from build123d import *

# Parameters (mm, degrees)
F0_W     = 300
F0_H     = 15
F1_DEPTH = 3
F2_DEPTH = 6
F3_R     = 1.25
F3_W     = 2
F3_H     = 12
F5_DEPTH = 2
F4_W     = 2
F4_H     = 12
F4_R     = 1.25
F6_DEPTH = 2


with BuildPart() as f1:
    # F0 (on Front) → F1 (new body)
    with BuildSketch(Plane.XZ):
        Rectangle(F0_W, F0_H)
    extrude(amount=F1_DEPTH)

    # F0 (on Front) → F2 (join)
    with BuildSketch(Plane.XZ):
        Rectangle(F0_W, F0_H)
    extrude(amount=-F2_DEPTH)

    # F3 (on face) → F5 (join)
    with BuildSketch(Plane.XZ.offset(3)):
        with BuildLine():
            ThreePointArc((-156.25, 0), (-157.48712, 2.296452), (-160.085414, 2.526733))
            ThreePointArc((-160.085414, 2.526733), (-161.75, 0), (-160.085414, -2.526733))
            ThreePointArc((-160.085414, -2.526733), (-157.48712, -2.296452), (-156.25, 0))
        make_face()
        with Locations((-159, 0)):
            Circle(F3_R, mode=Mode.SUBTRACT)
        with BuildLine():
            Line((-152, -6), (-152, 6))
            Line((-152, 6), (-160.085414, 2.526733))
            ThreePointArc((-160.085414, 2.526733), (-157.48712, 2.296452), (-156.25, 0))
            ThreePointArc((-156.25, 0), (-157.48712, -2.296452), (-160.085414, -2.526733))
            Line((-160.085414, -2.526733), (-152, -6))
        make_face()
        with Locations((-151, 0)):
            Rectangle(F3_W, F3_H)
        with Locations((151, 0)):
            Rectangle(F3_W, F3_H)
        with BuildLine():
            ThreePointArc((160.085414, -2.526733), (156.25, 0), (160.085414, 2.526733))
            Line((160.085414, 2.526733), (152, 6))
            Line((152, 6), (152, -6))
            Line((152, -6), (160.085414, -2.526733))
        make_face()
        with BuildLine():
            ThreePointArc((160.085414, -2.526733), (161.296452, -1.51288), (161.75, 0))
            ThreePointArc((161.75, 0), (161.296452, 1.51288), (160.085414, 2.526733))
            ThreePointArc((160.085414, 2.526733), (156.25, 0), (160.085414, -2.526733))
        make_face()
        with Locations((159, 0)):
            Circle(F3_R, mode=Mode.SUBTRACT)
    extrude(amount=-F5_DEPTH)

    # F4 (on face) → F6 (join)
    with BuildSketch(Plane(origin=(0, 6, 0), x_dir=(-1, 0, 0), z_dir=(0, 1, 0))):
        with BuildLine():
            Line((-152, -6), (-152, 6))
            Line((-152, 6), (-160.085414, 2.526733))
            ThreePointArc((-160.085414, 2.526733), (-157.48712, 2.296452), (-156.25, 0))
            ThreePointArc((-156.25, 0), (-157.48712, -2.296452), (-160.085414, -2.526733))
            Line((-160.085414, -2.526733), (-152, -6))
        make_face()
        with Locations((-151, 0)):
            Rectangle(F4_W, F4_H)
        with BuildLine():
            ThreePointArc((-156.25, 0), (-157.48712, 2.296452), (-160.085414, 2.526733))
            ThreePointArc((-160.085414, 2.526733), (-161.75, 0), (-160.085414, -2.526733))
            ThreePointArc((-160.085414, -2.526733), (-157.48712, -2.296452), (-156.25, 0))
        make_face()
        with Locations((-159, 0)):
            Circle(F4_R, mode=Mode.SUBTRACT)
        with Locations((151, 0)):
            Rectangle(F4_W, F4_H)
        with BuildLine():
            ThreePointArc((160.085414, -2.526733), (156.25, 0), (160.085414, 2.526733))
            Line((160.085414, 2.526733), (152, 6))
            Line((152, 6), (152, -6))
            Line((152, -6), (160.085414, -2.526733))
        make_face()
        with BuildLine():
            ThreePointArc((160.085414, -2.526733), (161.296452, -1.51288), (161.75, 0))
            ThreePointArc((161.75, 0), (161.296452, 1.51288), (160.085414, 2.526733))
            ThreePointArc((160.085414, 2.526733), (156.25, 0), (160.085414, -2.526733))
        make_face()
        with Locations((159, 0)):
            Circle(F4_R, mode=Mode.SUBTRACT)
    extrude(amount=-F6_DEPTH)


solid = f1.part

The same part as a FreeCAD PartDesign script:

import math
import FreeCAD as App
import Part
import Sketcher
from FreeCAD import Vector

doc = App.newDocument("Part")
params = doc.addObject("Spreadsheet::Sheet", "Params")
for row, (alias, value) in enumerate([
    ("sketch1_width", "300 mm"),
    ("sketch1_height", "15 mm"),
    ("pad1_length", "3 mm"),
    ("sketch2_width", "300 mm"),
    ("sketch2_height", "15 mm"),
    ("pad2_length", "6 mm"),
    ("sketch3_diameter", "2.5 mm"),
    ("sketch3_width", "2 mm"),
    ("sketch3_height", "12 mm"),
    ("sketch3_radius", "2.750001 mm"),
    ("pad3_length", "2 mm"),
    ("sketch4_diameter", "2.5 mm"),
    ("sketch4_width", "2 mm"),
    ("sketch4_height", "12 mm"),
    ("sketch4_radius", "2.750001 mm"),
    ("pad4_length", "2 mm"),
], start=1):
    params.set(f"A{row}", alias)
    params.set(f"B{row}", "=" + value)
    params.setAlias(f"B{row}", alias)

body = doc.addObject("PartDesign::Body", "Body")

sketch1 = doc.addObject("Sketcher::SketchObject", "Sketch")
body.addObject(sketch1)
sketch1.AttachmentSupport = (doc.XZ_Plane, [""])
sketch1.MapMode = "FlatFace"
sketch1.addGeometry([
    Part.LineSegment(Vector(-150, 8, 0), Vector(-150, -8, 0)),
    Part.LineSegment(Vector(-150, -8, 0), Vector(150, -8, 0)),
    Part.LineSegment(Vector(150, -8, 0), Vector(150, 8, 0)),
    Part.LineSegment(Vector(150, 8, 0), Vector(-150, 8, 0)),
], False)
sketch1.addConstraint([
    Sketcher.Constraint("Coincident", 0, 2, 1, 1),
    Sketcher.Constraint("Coincident", 1, 2, 2, 1),
    Sketcher.Constraint("Coincident", 2, 2, 3, 1),
    Sketcher.Constraint("Coincident", 3, 2, 0, 1),
    Sketcher.Constraint("Vertical", 0),
    Sketcher.Constraint("Horizontal", 1),
    Sketcher.Constraint("Vertical", 2),
    Sketcher.Constraint("Horizontal", 3),
    Sketcher.Constraint("Symmetric", 0, 2, 2, 2, -1, 1),
    Sketcher.Constraint("DistanceX", 1, 1, 1, 2, 300.0),
    Sketcher.Constraint("DistanceY", 0, 2, 0, 1, 15.0),
])
sketch1.setExpression("Constraints[9]", "Params.sketch1_width")
sketch1.setExpression("Constraints[10]", "Params.sketch1_height")
pad1 = doc.addObject("PartDesign::Pad", "Pad")
body.addObject(pad1)
pad1.Profile = sketch1
pad1.setExpression("Length", "Params.pad1_length")

sketch2 = doc.addObject("Sketcher::SketchObject", "Sketch001")
body.addObject(sketch2)
sketch2.AttachmentSupport = (doc.XZ_Plane, [""])
sketch2.MapMode = "FlatFace"
sketch2.addGeometry([
    Part.LineSegment(Vector(-150, 8, 0), Vector(-150, -8, 0)),
    Part.LineSegment(Vector(-150, -8, 0), Vector(150, -8, 0)),
    Part.LineSegment(Vector(150, -8, 0), Vector(150, 8, 0)),
    Part.LineSegment(Vector(150, 8, 0), Vector(-150, 8, 0)),
], False)
sketch2.addConstraint([
    Sketcher.Constraint("Coincident", 0, 2, 1, 1),
    Sketcher.Constraint("Coincident", 1, 2, 2, 1),
    Sketcher.Constraint("Coincident", 2, 2, 3, 1),
    Sketcher.Constraint("Coincident", 3, 2, 0, 1),
    Sketcher.Constraint("Vertical", 0),
    Sketcher.Constraint("Horizontal", 1),
    Sketcher.Constraint("Vertical", 2),
    Sketcher.Constraint("Horizontal", 3),
    Sketcher.Constraint("Symmetric", 0, 2, 2, 2, -1, 1),
    Sketcher.Constraint("DistanceX", 1, 1, 1, 2, 300.0),
    Sketcher.Constraint("DistanceY", 0, 2, 0, 1, 15.0),
])
sketch2.setExpression("Constraints[9]", "Params.sketch2_width")
sketch2.setExpression("Constraints[10]", "Params.sketch2_height")
pad2 = doc.addObject("PartDesign::Pad", "Pad001")
body.addObject(pad2)
pad2.Profile = sketch2
pad2.setExpression("Length", "Params.pad2_length")
pad2.Reversed = True

sketch3 = doc.addObject("Sketcher::SketchObject", "Sketch002")
body.addObject(sketch3)
sketch3.AttachmentSupport = (doc.XZ_Plane, [""])
sketch3.MapMode = "FlatFace"
sketch3.AttachmentOffset = App.Placement(Vector(0, 0, 3), App.Rotation())
sketch3.addGeometry([
    Part.ArcOfCircle(Part.Circle(Vector(-159, 0, 0), Vector(0, 0, 1), 2.8), math.radians(113), math.radians(247)),
    Part.LineSegment(Vector(-160.1, -2.5, 0), Vector(-152, -6, 0)),
    Part.LineSegment(Vector(-152, -6, 0), Vector(-150, -6, 0)),
    Part.LineSegment(Vector(-150, -6, 0), Vector(-150, 6, 0)),
    Part.LineSegment(Vector(-150, 6, 0), Vector(-152, 6, 0)),
    Part.LineSegment(Vector(-152, 6, 0), Vector(-160.1, 2.5, 0)),
    Part.Circle(Vector(-159, 0, 0), Vector(0, 0, 1), 1.2),
    Part.LineSegment(Vector(150, 6, 0), Vector(150, -6, 0)),
    Part.LineSegment(Vector(150, -6, 0), Vector(152, -6, 0)),
    Part.LineSegment(Vector(152, -6, 0), Vector(160.1, -2.5, 0)),
    Part.ArcOfCircle(Part.Circle(Vector(159, 0, 0), Vector(0, 0, 1), 2.8), math.radians(-67), math.radians(0)),
    Part.ArcOfCircle(Part.Circle(Vector(159, 0, 0), Vector(0, 0, 1), 2.8), math.radians(0), math.radians(67)),
    Part.LineSegment(Vector(160.1, 2.5, 0), Vector(152, 6, 0)),
    Part.LineSegment(Vector(152, 6, 0), Vector(150, 6, 0)),
    Part.Circle(Vector(159, 0, 0), Vector(0, 0, 1), 1.2),
], False)
sketch3.addConstraint([
    Sketcher.Constraint("Tangent", 0, 2, 1, 1),
    Sketcher.Constraint("Coincident", 1, 2, 2, 1),
    Sketcher.Constraint("Coincident", 2, 2, 3, 1),
    Sketcher.Constraint("Coincident", 3, 2, 4, 1),
    Sketcher.Constraint("Coincident", 4, 2, 5, 1),
    Sketcher.Constraint("Tangent", 5, 2, 0, 1),
    Sketcher.Constraint("Coincident", 7, 2, 8, 1),
    Sketcher.Constraint("Coincident", 8, 2, 9, 1),
    Sketcher.Constraint("Tangent", 9, 2, 10, 1),
    Sketcher.Constraint("Tangent", 10, 2, 11, 1),
    Sketcher.Constraint("Tangent", 11, 2, 12, 1),
    Sketcher.Constraint("Coincident", 12, 2, 13, 1),
    Sketcher.Constraint("Coincident", 13, 2, 7, 1),
    Sketcher.Constraint("Horizontal", 2),
    Sketcher.Constraint("Vertical", 3),
    Sketcher.Constraint("Horizontal", 4),
    Sketcher.Constraint("Vertical", 7),
    Sketcher.Constraint("Horizontal", 8),
    Sketcher.Constraint("Horizontal", 13),
    Sketcher.Constraint("Coincident", 6, 3, 0, 3),
    Sketcher.Constraint("Coincident", 14, 3, 10, 3),
    Sketcher.Constraint("Equal", 10, 11),
    Sketcher.Constraint("Equal", 6, 14),
    Sketcher.Constraint("Symmetric", 0, 3, 10, 3, -1, 1),
    Sketcher.Constraint("Symmetric", 3, 2, 7, 2, -1, 1),
    Sketcher.Constraint("Symmetric", 5, 2, 9, 2, -1, 1),
    Sketcher.Constraint("Symmetric", 1, 2, 12, 2, -1, 1),
    Sketcher.Constraint("Symmetric", 1, 2, 8, 2, -2),
    Sketcher.Constraint("PointOnObject", 0, 3, -1),
    Sketcher.Constraint("PointOnObject", 10, 2, -1),
    Sketcher.Constraint("Diameter", 6, 2.5),
    Sketcher.Constraint("DistanceX", 2, 1, 2, 2, 2.0),
    Sketcher.Constraint("DistanceY", 3, 1, 3, 2, 12.0),
    Sketcher.Constraint("Radius", 0, 2.750001),
    Sketcher.Constraint("DistanceX", 0, 3, -1, 1, 158.999999),
    Sketcher.Constraint("DistanceX", 1, 2, -1, 1, 152.0),
])
sketch3.setExpression("Constraints[30]", "Params.sketch3_diameter")
sketch3.setExpression("Constraints[31]", "Params.sketch3_width")
sketch3.setExpression("Constraints[32]", "Params.sketch3_height")
sketch3.setExpression("Constraints[33]", "Params.sketch3_radius")
pad3 = doc.addObject("PartDesign::Pad", "Pad002")
body.addObject(pad3)
pad3.Profile = sketch3
pad3.setExpression("Length", "Params.pad3_length")
pad3.Reversed = True

sketch4 = doc.addObject("Sketcher::SketchObject", "Sketch003")
body.addObject(sketch4)
sketch4.AttachmentSupport = (doc.XZ_Plane, [""])
sketch4.MapMode = "FlatFace"
sketch4.AttachmentOffset = App.Placement(Vector(0, 0, -6), App.Rotation())
sketch4.addGeometry([
    Part.LineSegment(Vector(152, 6, 0), Vector(160.1, 2.5, 0)),
    Part.ArcOfCircle(Part.Circle(Vector(159, 0, 0), Vector(0, 0, 1), 2.8), math.radians(-67), math.radians(67)),
    Part.LineSegment(Vector(160.1, -2.5, 0), Vector(152, -6, 0)),
    Part.LineSegment(Vector(152, -6, 0), Vector(150, -6, 0)),
    Part.LineSegment(Vector(150, -6, 0), Vector(150, 6, 0)),
    Part.LineSegment(Vector(150, 6, 0), Vector(152, 6, 0)),
    Part.Circle(Vector(159, 0, 0), Vector(0, 0, 1), 1.2),
    Part.LineSegment(Vector(-150, 6, 0), Vector(-150, -6, 0)),
    Part.LineSegment(Vector(-150, -6, 0), Vector(-152, -6, 0)),
    Part.LineSegment(Vector(-152, -6, 0), Vector(-160.1, -2.5, 0)),
    Part.ArcOfCircle(Part.Circle(Vector(-159, 0, 0), Vector(0, 0, 1), 2.8), math.radians(-180), math.radians(-113)),
    Part.ArcOfCircle(Part.Circle(Vector(-159, 0, 0), Vector(0, 0, 1), 2.8), math.radians(113), math.radians(180)),
    Part.LineSegment(Vector(-160.1, 2.5, 0), Vector(-152, 6, 0)),
    Part.LineSegment(Vector(-152, 6, 0), Vector(-150, 6, 0)),
    Part.Circle(Vector(-159, 0, 0), Vector(0, 0, 1), 1.2),
], False)
sketch4.addConstraint([
    Sketcher.Constraint("Tangent", 0, 2, 1, 2),
    Sketcher.Constraint("Tangent", 1, 1, 2, 1),
    Sketcher.Constraint("Coincident", 2, 2, 3, 1),
    Sketcher.Constraint("Coincident", 3, 2, 4, 1),
    Sketcher.Constraint("Coincident", 4, 2, 5, 1),
    Sketcher.Constraint("Coincident", 5, 2, 0, 1),
    Sketcher.Constraint("Coincident", 7, 2, 8, 1),
    Sketcher.Constraint("Coincident", 8, 2, 9, 1),
    Sketcher.Constraint("Tangent", 9, 2, 10, 2),
    Sketcher.Constraint("Tangent", 10, 1, 11, 2),
    Sketcher.Constraint("Tangent", 11, 1, 12, 1),
    Sketcher.Constraint("Coincident", 12, 2, 13, 1),
    Sketcher.Constraint("Coincident", 13, 2, 7, 1),
    Sketcher.Constraint("Horizontal", 3),
    Sketcher.Constraint("Vertical", 4),
    Sketcher.Constraint("Horizontal", 5),
    Sketcher.Constraint("Vertical", 7),
    Sketcher.Constraint("Horizontal", 8),
    Sketcher.Constraint("Horizontal", 13),
    Sketcher.Constraint("Coincident", 6, 3, 1, 3),
    Sketcher.Constraint("Coincident", 14, 3, 10, 3),
    Sketcher.Constraint("Equal", 10, 11),
    Sketcher.Constraint("Equal", 6, 14),
    Sketcher.Constraint("Symmetric", 1, 3, 10, 3, -1, 1),
    Sketcher.Constraint("Symmetric", 4, 2, 7, 2, -1, 1),
    Sketcher.Constraint("Symmetric", 0, 2, 9, 2, -1, 1),
    Sketcher.Constraint("Symmetric", 2, 2, 12, 2, -1, 1),
    Sketcher.Constraint("Symmetric", 2, 2, 8, 2, -2),
    Sketcher.Constraint("PointOnObject", 1, 3, -1),
    Sketcher.Constraint("PointOnObject", 10, 1, -1),
    Sketcher.Constraint("Diameter", 6, 2.5),
    Sketcher.Constraint("DistanceX", 3, 2, 3, 1, 2.0),
    Sketcher.Constraint("DistanceY", 4, 1, 4, 2, 12.0),
    Sketcher.Constraint("Radius", 1, 2.750001),
    Sketcher.Constraint("DistanceX", -1, 1, 1, 3, 158.999999),
    Sketcher.Constraint("DistanceX", -1, 1, 2, 2, 152.0),
])
sketch4.setExpression("Constraints[30]", "Params.sketch4_diameter")
sketch4.setExpression("Constraints[31]", "Params.sketch4_width")
sketch4.setExpression("Constraints[32]", "Params.sketch4_height")
sketch4.setExpression("Constraints[33]", "Params.sketch4_radius")
pad4 = doc.addObject("PartDesign::Pad", "Pad003")
body.addObject(pad4)
pad4.Profile = sketch4
pad4.setExpression("Length", "Params.pad4_length")

doc.recompute()
